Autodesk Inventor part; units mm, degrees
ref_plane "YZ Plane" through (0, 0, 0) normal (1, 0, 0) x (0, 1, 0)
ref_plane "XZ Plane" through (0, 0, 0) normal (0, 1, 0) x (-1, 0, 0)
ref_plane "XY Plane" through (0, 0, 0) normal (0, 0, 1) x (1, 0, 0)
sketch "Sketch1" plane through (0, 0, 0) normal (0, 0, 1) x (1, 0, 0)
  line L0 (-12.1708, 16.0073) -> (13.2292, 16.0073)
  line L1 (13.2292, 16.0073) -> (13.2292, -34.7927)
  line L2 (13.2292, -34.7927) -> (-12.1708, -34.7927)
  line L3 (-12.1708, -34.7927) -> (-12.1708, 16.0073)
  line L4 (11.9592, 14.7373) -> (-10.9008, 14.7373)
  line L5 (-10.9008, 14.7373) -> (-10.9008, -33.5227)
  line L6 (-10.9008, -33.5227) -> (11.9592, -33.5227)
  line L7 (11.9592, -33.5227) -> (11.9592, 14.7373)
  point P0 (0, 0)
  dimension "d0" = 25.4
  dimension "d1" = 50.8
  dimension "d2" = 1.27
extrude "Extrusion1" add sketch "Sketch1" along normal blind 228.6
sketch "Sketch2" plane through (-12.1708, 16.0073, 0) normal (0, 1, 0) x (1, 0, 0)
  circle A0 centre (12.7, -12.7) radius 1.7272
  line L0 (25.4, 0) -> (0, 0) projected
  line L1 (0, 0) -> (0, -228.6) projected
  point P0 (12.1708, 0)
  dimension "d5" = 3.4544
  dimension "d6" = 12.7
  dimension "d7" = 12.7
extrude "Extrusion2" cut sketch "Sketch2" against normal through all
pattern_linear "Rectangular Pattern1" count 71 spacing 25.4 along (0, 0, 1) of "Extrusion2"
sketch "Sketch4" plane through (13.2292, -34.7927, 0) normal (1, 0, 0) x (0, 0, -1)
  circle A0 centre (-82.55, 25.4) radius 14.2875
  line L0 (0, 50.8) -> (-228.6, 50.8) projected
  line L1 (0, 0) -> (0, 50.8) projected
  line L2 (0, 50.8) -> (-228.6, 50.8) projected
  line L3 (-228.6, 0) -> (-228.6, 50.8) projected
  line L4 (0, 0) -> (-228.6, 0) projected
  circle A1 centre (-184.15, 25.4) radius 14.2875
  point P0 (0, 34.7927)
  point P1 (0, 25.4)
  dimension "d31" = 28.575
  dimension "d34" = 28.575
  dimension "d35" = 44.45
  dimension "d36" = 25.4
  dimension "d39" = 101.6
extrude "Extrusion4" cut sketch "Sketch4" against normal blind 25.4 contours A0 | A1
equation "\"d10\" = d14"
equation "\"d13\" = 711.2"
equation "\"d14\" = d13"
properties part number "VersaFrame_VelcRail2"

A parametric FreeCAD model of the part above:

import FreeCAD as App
import Part
import Sketcher
Q = App.Units.Quantity


def add_polygon(sketch, points):
    """Adds a closed chain of lines whose ends are joined by coincident constraints."""
    first, n = sketch.GeometryCount, len(points)
    for a, b in zip(points, points[1:] + points[:1]):
        sketch.addGeometry(Part.LineSegment(App.Vector(*a, 0), App.Vector(*b, 0)), False)
    for i in range(n):
        sketch.addConstraint(Sketcher.Constraint("Coincident", first + i, 2, first + (i + 1) % n, 1))

doc = App.newDocument("Part")
body = doc.addObject("PartDesign::Body", "Body")

sketch1 = doc.addObject("Sketcher::SketchObject", "Sketch")
body.addObject(sketch1)
sketch1.AttachmentSupport = (doc.XY_Plane, [""])
sketch1.MapMode = "FlatFace"
add_polygon(sketch1, [(13.2292, 16.0073), (-12.1708, 16.0073), (-12.1708, -34.7927), (13.2292, -34.7927)])
add_polygon(sketch1, [(-10.9008, 14.7373), (11.9592, 14.7373), (11.9592, -33.5227), (-10.9008, -33.5227)])
sketch1.addConstraint([
    Sketcher.Constraint("Horizontal", 0),
    Sketcher.Constraint("Vertical", 1),
    Sketcher.Constraint("Horizontal", 2),
    Sketcher.Constraint("Vertical", 3),
    Sketcher.Constraint("Horizontal", 4),
    Sketcher.Constraint("Vertical", 5),
    Sketcher.Constraint("Horizontal", 6),
    Sketcher.Constraint("Vertical", 7),
    Sketcher.Constraint("DistanceX", 0, 2, 0, 1, Q("1 in")),
    Sketcher.Constraint("DistanceY", 1, 2, 1, 1, Q("2 in")),
    Sketcher.Constraint("DistanceX", 4, 2, 3, 2, Q("0.05 in")),
    Sketcher.Constraint("DistanceY", 4, 2, 3, 2, Q("0.05 in")),
    Sketcher.Constraint("DistanceY", 2, 2, 5, 2, Q("0.05 in")),
    Sketcher.Constraint("DistanceX", 1, 2, 6, 2, Q("0.05 in")),
    Sketcher.Constraint("DistanceY", -1, 1, 0, 2, Q("0.6302 in")),
    Sketcher.Constraint("DistanceX", 0, 2, -1, 1, 12.1708),
])
pad1 = doc.addObject("PartDesign::Pad", "Pad")
body.addObject(pad1)
pad1.Profile = sketch1
pad1.Length = Q("9 in")

sketch2 = doc.addObject("Sketcher::SketchObject", "Sketch001")
body.addObject(sketch2)
sketch2.AttachmentSupport = (doc.XZ_Plane, [""])
sketch2.MapMode = "FlatFace"
sketch2.AttachmentOffset = App.Placement(App.Vector(0, 0, -0.6302087 * 25.4), App.Rotation())
sketch2.addGeometry(Part.Circle(App.Vector(0.5292, 12.7, 0), App.Vector(0, 0, 1), 1.7272), False)
sketch2.addConstraint([
    Sketcher.Constraint("Diameter", 0, Q("0.136 in")),
    Sketcher.Constraint("DistanceY", -1, 1, 0, 3, Q("0.5 in")),
    Sketcher.Constraint("DistanceX", -1, 1, 0, 3, 0.5292),
])
pocket1 = doc.addObject("PartDesign::Pocket", "Pocket")
body.addObject(pocket1)
pocket1.Profile = sketch2
pocket1.Type = "ThroughAll"
pocket1.Reversed = True
doc.recompute()

linearpattern = doc.addObject("PartDesign::LinearPattern", "LinearPattern")
body.addObject(linearpattern)
linearpattern.Originals = [pocket1]
linearpattern.Direction = (doc.Z_Axis, [""])
linearpattern.Mode = "offset"
linearpattern.Offset = Q("1 in")
linearpattern.Occurrences = 71
body.Tip = linearpattern

sketch3 = doc.addObject("Sketcher::SketchObject", "Sketch002")
body.addObject(sketch3)
sketch3.AttachmentSupport = (doc.YZ_Plane, [""])
sketch3.MapMode = "FlatFace"
sketch3.AttachmentOffset = App.Placement(App.Vector(0, 0, 13.2292), App.Rotation())
sketch3.addGeometry([
    Part.Circle(App.Vector(-9.3927, 82.55, 0), App.Vector(0, 0, 1), 14.2875),
    Part.Circle(App.Vector(-9.3927, 184.15, 0), App.Vector(0, 0, 1), 14.2875),
], False)
sketch3.addConstraint([
    Sketcher.Constraint("Equal", 0, 1),
    Sketcher.Constraint("Vertical", 0, 3, 1, 3),
    Sketcher.Constraint("Diameter", 0, Q("1.125 in")),
    Sketcher.Constraint("DistanceY", 0, 3, 1, 3, Q("4 in")),
    Sketcher.Constraint("DistanceY", -1, 1, 0, 3, Q("3.25 in")),
    Sketcher.Constraint("DistanceX", 0, 3, -1, 1, Q("0.3698 in")),
])
pocket2 = doc.addObject("PartDesign::Pocket", "Pocket001")
body.addObject(pocket2)
pocket2.Profile = sketch3
pocket2.Length = Q("1 in")

doc.recompute()
